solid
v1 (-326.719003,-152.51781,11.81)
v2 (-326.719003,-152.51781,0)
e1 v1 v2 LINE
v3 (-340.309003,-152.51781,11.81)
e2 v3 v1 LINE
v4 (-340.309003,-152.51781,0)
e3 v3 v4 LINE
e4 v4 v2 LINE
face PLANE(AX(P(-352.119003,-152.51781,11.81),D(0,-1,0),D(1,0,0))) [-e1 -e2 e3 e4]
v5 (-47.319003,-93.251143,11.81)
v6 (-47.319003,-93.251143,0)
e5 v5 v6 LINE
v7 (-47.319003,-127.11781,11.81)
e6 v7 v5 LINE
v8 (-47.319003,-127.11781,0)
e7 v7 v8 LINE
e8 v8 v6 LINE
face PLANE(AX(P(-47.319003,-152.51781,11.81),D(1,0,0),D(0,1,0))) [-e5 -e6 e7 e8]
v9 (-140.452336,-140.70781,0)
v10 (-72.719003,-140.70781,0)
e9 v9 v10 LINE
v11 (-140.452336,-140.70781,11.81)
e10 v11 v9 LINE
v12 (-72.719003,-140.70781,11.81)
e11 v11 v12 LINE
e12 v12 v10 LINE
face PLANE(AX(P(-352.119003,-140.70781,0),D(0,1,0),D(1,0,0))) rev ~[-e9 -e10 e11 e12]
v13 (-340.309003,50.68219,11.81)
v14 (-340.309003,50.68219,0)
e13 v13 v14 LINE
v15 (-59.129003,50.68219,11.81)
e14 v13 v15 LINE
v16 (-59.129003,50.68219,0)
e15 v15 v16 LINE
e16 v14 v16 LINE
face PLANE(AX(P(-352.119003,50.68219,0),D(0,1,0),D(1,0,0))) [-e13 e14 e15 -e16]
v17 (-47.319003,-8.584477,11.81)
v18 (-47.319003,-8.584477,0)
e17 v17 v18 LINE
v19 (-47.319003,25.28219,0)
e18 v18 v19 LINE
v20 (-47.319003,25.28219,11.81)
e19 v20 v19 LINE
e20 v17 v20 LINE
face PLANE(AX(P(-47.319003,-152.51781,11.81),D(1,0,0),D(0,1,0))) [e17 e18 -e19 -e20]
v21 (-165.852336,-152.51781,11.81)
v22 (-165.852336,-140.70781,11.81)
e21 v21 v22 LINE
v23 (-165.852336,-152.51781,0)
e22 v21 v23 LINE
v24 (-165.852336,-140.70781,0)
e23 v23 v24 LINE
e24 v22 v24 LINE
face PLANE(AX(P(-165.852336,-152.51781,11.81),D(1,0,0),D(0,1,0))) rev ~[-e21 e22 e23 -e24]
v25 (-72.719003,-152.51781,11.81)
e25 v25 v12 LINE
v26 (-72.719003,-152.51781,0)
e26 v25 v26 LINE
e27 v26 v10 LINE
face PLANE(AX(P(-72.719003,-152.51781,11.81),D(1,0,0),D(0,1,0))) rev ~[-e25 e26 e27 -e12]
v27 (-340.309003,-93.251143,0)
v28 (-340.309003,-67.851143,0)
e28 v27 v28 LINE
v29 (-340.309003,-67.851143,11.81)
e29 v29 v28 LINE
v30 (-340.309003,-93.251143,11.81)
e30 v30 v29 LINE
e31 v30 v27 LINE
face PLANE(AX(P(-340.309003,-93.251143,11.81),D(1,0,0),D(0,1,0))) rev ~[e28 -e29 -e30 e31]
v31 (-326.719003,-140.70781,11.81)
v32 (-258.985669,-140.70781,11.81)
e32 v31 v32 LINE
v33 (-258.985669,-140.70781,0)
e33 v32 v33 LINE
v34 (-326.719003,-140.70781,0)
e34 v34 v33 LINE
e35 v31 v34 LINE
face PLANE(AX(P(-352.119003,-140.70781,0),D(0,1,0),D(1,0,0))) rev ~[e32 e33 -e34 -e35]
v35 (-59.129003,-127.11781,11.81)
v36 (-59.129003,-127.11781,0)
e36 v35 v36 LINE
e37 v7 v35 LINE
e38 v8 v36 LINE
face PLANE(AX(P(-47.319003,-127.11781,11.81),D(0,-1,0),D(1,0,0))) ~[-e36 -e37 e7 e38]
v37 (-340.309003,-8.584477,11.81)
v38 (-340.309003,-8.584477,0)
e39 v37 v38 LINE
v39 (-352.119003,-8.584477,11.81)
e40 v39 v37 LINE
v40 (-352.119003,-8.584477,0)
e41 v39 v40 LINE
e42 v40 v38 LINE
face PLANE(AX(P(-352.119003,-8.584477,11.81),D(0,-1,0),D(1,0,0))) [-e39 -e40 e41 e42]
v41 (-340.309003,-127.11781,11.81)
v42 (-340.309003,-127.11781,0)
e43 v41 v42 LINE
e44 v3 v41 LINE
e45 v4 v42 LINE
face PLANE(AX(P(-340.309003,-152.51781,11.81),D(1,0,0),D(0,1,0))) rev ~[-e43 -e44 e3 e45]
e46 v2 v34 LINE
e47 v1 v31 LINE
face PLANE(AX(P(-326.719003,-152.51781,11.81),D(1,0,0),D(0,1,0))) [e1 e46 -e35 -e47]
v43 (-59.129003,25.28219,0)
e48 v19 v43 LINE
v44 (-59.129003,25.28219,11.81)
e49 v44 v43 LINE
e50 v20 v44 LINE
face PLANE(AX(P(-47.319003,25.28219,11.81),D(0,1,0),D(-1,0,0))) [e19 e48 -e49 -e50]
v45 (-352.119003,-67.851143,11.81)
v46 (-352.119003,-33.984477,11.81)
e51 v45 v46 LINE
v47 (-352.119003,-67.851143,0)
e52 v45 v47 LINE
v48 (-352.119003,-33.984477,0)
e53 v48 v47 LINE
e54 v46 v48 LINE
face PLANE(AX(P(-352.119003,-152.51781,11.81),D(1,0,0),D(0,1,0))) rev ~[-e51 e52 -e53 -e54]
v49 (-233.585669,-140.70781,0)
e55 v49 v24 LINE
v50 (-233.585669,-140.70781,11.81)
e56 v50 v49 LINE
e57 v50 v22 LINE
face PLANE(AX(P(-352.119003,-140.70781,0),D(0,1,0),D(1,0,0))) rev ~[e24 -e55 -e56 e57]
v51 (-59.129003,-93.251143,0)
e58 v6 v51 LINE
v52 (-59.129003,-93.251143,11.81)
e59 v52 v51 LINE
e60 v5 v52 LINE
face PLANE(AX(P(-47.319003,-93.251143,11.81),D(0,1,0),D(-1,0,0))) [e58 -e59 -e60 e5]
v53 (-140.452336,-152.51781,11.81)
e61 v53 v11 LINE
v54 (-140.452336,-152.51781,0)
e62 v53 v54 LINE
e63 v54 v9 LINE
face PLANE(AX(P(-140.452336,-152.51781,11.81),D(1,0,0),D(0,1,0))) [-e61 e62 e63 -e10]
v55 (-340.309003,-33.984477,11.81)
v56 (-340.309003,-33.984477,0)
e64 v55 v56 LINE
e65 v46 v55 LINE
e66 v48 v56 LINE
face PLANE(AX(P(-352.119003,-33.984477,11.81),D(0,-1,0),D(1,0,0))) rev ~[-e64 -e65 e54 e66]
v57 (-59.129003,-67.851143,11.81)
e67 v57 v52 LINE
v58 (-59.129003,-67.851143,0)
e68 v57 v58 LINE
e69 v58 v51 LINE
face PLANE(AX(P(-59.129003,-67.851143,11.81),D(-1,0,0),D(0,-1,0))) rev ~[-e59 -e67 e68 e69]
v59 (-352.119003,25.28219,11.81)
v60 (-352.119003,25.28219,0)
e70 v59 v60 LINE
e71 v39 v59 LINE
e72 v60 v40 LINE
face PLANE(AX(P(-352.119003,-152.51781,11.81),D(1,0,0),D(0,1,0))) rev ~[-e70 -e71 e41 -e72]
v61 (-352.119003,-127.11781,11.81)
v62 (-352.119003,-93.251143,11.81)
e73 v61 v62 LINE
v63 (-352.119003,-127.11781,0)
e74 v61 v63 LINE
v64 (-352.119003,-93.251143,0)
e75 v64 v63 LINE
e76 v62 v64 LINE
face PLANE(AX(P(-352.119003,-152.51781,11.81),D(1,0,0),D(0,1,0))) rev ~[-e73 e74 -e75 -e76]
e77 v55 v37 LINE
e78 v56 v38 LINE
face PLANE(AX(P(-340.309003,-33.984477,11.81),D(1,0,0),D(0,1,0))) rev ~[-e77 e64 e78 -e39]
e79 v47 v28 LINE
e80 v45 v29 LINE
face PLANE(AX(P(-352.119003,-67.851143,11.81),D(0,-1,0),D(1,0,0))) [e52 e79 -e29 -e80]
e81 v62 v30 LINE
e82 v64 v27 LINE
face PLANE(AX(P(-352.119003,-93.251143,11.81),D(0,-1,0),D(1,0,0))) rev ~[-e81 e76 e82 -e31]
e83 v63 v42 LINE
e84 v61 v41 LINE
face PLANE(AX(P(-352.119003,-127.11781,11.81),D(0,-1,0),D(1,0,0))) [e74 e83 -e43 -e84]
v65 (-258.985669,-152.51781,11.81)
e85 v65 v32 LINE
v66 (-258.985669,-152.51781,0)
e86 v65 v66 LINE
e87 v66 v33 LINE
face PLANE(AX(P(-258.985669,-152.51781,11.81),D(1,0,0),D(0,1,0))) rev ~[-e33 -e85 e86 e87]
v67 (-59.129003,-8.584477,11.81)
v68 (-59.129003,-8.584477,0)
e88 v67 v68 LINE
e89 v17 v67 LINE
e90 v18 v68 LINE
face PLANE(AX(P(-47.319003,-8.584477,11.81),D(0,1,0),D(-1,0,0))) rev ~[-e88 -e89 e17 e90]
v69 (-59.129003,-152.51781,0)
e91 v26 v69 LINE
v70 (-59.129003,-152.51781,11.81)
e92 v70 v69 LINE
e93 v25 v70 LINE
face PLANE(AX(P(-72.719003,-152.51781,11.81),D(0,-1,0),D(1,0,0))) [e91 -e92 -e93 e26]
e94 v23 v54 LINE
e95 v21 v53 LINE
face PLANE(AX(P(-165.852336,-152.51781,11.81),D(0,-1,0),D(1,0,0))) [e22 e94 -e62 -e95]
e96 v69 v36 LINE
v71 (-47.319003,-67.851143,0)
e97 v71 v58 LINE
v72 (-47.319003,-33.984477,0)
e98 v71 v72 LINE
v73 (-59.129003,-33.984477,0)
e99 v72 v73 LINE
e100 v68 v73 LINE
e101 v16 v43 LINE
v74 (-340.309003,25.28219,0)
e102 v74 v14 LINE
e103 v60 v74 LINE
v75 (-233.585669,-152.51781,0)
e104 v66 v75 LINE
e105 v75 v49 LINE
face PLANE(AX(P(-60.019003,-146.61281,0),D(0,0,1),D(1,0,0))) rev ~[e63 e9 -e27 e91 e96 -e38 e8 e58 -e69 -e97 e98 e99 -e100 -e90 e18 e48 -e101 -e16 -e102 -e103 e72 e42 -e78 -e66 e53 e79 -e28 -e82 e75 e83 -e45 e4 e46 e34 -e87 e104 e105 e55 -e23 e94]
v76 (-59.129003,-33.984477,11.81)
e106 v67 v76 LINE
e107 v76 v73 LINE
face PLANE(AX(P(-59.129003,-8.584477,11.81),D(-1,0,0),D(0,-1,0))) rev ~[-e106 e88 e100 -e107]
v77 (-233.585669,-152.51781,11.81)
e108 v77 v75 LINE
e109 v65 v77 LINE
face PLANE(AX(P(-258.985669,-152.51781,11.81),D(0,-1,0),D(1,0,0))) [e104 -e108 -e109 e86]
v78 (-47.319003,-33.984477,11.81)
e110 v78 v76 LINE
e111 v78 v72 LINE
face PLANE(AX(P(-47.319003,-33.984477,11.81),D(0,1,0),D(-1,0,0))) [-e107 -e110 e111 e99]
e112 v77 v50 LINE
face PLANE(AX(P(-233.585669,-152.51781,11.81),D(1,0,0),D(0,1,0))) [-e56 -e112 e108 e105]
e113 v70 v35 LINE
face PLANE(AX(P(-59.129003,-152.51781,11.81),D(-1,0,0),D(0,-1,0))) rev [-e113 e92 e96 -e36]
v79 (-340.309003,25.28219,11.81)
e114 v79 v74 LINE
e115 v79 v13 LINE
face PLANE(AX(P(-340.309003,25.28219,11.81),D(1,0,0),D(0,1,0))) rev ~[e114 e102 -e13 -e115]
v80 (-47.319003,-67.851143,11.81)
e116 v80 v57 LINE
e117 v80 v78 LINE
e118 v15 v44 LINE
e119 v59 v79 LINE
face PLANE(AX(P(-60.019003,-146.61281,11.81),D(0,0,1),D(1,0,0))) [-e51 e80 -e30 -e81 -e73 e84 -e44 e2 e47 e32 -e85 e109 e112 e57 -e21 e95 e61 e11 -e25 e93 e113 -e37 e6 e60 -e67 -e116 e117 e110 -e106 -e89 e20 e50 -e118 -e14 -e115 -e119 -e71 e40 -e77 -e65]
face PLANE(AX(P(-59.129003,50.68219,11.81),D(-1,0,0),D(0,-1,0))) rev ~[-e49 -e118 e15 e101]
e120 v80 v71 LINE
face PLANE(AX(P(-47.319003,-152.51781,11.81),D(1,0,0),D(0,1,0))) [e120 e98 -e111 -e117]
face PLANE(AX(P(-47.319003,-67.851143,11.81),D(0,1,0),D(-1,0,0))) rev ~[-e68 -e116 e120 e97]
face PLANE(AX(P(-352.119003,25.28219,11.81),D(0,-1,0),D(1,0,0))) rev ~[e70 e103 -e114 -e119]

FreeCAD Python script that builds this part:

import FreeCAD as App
import Part
import Sketcher

V = App.Vector
Q = App.Units.Quantity

doc = App.newDocument("Part")
body = doc.addObject("PartDesign::Body", "Body")

# Sketch on XY plane
sketch1 = body.newObject("Sketcher::SketchObject", "Sketch")
sketch1.AttachmentSupport = (doc.getObject("XY_Plane"), [""])
sketch1.MapMode = "FlatFace"
sketch1.addGeometry([
    Part.LineSegment(V(-352.119003, 50.68219, 0), V(-352.119003, -140.70781, 0)),
    Part.LineSegment(V(-352.119003, -140.70781, 0), V(-47.319003, -140.70781, 0)),
    Part.LineSegment(V(-47.319003, -140.70781, 0), V(-47.319003, 50.68219, 0)),
    Part.LineSegment(V(-47.319003, 50.68219, 0), V(-352.119003, 50.68219, 0)),
], False)
sketch1.addConstraint([
    Sketcher.Constraint("Coincident", 0, 2, 1, 1),
    Sketcher.Constraint("Coincident", 1, 2, 2, 1),
    Sketcher.Constraint("Coincident", 2, 2, 3, 1),
    Sketcher.Constraint("Coincident", 3, 2, 0, 1),
    Sketcher.Constraint("Vertical", 0),
    Sketcher.Constraint("Horizontal", 1),
    Sketcher.Constraint("Vertical", 2),
    Sketcher.Constraint("Horizontal", 3),
    Sketcher.Constraint("DistanceX", 1, 1, 1, 2, Q("12 in")),
    Sketcher.Constraint("DistanceY", 0, 2, 0, 1, 191.39),
    Sketcher.Constraint("DistanceY", 0, 2, -1, 1, 140.70781),
    Sketcher.Constraint("DistanceX", 0, 2, -1, 1, 352.119003),
])
pad1 = body.newObject("PartDesign::Pad", "Pad")
pad1.Profile = sketch1
pad1.Length = 11.81

# Sketch on XY plane
sketch2 = body.newObject("Sketcher::SketchObject", "Sketch001")
sketch2.AttachmentSupport = (doc.getObject("XY_Plane"), [""])
sketch2.MapMode = "FlatFace"
sketch2.AttachmentOffset = App.Placement(V(0, 0, 11.81), App.Rotation())
sketch2.addGeometry([
    Part.LineSegment(V(-352.119003, -140.70781, 0), V(-352.119003, -152.51781, 0)),
    Part.LineSegment(V(-352.119003, -152.51781, 0), V(-326.719003, -152.51781, 0)),
    Part.LineSegment(V(-326.719003, -152.51781, 0), V(-326.719003, -140.70781, 0)),
    Part.LineSegment(V(-326.719003, -140.70781, 0), V(-352.119003, -140.70781, 0)),
], False)
sketch2.addConstraint([
    Sketcher.Constraint("Coincident", 0, 2, 1, 1),
    Sketcher.Constraint("Coincident", 1, 2, 2, 1),
    Sketcher.Constraint("Coincident", 2, 2, 3, 1),
    Sketcher.Constraint("Coincident", 3, 2, 0, 1),
    Sketcher.Constraint("Vertical", 0),
    Sketcher.Constraint("Horizontal", 1),
    Sketcher.Constraint("Vertical", 2),
    Sketcher.Constraint("Horizontal", 3),
    Sketcher.Constraint("DistanceX", 1, 1, 1, 2, Q("1 in")),
    Sketcher.Constraint("DistanceY", 0, 2, 0, 1, 11.81),
    Sketcher.Constraint("DistanceY", 0, 2, -1, 1, 152.51781),
    Sketcher.Constraint("DistanceX", 0, 2, -1, 1, 352.119003),
])
pad2 = body.newObject("PartDesign::Pad", "Pad001")
pad2.Profile = sketch2
pad2.Length = 11.81
pad2.Reversed = True

# Sketch on XY plane
sketch3 = body.newObject("Sketcher::SketchObject", "Sketch002")
sketch3.AttachmentSupport = (doc.getObject("XY_Plane"), [""])
sketch3.MapMode = "FlatFace"
sketch3.AttachmentOffset = App.Placement(V(0, 0, 11.81), App.Rotation())
sketch3.addGeometry([
    Part.LineSegment(V(-352.119003, -127.11781, 0), V(-352.119003, -152.51781, 0)),
    Part.LineSegment(V(-352.119003, -152.51781, 0), V(-340.309003, -152.51781, 0)),
    Part.LineSegment(V(-340.309003, -152.51781, 0), V(-340.309003, -127.11781, 0)),
    Part.LineSegment(V(-340.309003, -127.11781, 0), V(-352.119003, -127.11781, 0)),
], False)
sketch3.addConstraint([
    Sketcher.Constraint("Coincident", 0, 2, 1, 1),
    Sketcher.Constraint("Coincident", 1, 2, 2, 1),
    Sketcher.Constraint("Coincident", 2, 2, 3, 1),
    Sketcher.Constraint("Coincident", 3, 2, 0, 1),
    Sketcher.Constraint("Vertical", 0),
    Sketcher.Constraint("Horizontal", 1),
    Sketcher.Constraint("Vertical", 2),
    Sketcher.Constraint("Horizontal", 3),
    Sketcher.Constraint("DistanceY", 0, 2, 0, 1, Q("1 in")),
    Sketcher.Constraint("DistanceX", 1, 1, 1, 2, 11.81),
    Sketcher.Constraint("DistanceY", 0, 2, -1, 1, 152.51781),
    Sketcher.Constraint("DistanceX", 0, 2, -1, 1, 352.119003),
])
pocket1 = body.newObject("PartDesign::Pocket", "Pocket")
pocket1.Profile = sketch3
pocket1.Type = "ThroughAll"
doc.recompute()

linearpattern = body.newObject("PartDesign::LinearPattern", "LinearPattern")
linearpattern.Originals = [pad2]
linearpattern.Direction = (doc.getObject("X_Axis"), [""])
linearpattern.Mode = "offset"
linearpattern.Offset = 93.133333
linearpattern.Occurrences = 4
body.Tip = linearpattern
doc.recompute()

linearpattern2 = body.newObject("PartDesign::LinearPattern", "LinearPattern001")
linearpattern2.Originals = [pocket1]
linearpattern2.Direction = (doc.getObject("Y_Axis"), [""])
linearpattern2.Mode = "offset"
linearpattern2.Offset = 59.266667
linearpattern2.Occurrences = 4
body.Tip = linearpattern2
doc.recompute()

datumplane = body.newObject("PartDesign::Plane", "DatumPlane")
datumplane.AttachmentSupport = (doc.getObject("YZ_Plane"), [""])
datumplane.MapMode = "FlatFace"
datumplane.AttachmentOffset = App.Placement(V(0, 0, -199.719003), App.Rotation())
mirrored = body.newObject("PartDesign::Mirrored", "Mirrored")
mirrored.Originals = [pocket1]
mirrored.MirrorPlane = (datumplane, [""])
body.Tip = mirrored

# Sketch on XY plane
sketch4 = body.newObject("Sketcher::SketchObject", "Sketch003")
sketch4.AttachmentSupport = (doc.getObject("XY_Plane"), [""])
sketch4.MapMode = "FlatFace"
sketch4.AttachmentOffset = App.Placement(V(0, 0, 11.81), App.Rotation())
sketch4.addGeometry([
    Part.LineSegment(V(-47.319003, -93.251143, 0), V(-47.319003, -67.851143, 0)),
    Part.LineSegment(V(-47.319003, -67.851143, 0), V(-59.129003, -67.851143, 0)),
    Part.LineSegment(V(-59.129003, -67.851143, 0), V(-59.129003, -93.251143, 0)),
    Part.LineSegment(V(-59.129003, -93.251143, 0), V(-47.319003, -93.251143, 0)),
], False)
sketch4.addConstraint([
    Sketcher.Constraint("Coincident", 0, 2, 1, 1),
    Sketcher.Constraint("Coincident", 1, 2, 2, 1),
    Sketcher.Constraint("Coincident", 2, 2, 3, 1),
    Sketcher.Constraint("Coincident", 3, 2, 0, 1),
    Sketcher.Constraint("Vertical", 0),
    Sketcher.Constraint("Horizontal", 1),
    Sketcher.Constraint("Vertical", 2),
    Sketcher.Constraint("Horizontal", 3),
    Sketcher.Constraint("DistanceY", 0, 1, 0, 2, Q("1 in")),
    Sketcher.Constraint("DistanceX", 1, 2, 1, 1, 11.81),
    Sketcher.Constraint("DistanceX", 0, 2, -1, 1, 47.319003),
    Sketcher.Constraint("DistanceY", 0, 2, -1, 1, 67.851143),
])
pocket2 = body.newObject("PartDesign::Pocket", "Pocket001")
pocket2.Profile = sketch4
pocket2.Type = "ThroughAll"

# Sketch on XY plane
sketch5 = body.newObject("Sketcher::SketchObject", "Sketch004")
sketch5.AttachmentSupport = (doc.getObject("XY_Plane"), [""])
sketch5.MapMode = "FlatFace"
sketch5.AttachmentOffset = App.Placement(V(0, 0, 11.81), App.Rotation())
sketch5.addGeometry([
    Part.LineSegment(V(-47.319003, -33.984477, 0), V(-47.319003, -8.584477, 0)),
    Part.LineSegment(V(-47.319003, -8.584477, 0), V(-59.129003, -8.584477, 0)),
    Part.LineSegment(V(-59.129003, -8.584477, 0), V(-59.129003, -33.984477, 0)),
    Part.LineSegment(V(-59.129003, -33.984477, 0), V(-47.319003, -33.984477, 0)),
], False)
sketch5.addConstraint([
    Sketcher.Constraint("Coincident", 0, 2, 1, 1),
    Sketcher.Constraint("Coincident", 1, 2, 2, 1),
    Sketcher.Constraint("Coincident", 2, 2, 3, 1),
    Sketcher.Constraint("Coincident", 3, 2, 0, 1),
    Sketcher.Constraint("Vertical", 0),
    Sketcher.Constraint("Horizontal", 1),
    Sketcher.Constraint("Vertical", 2),
    Sketcher.Constraint("Horizontal", 3),
    Sketcher.Constraint("DistanceY", 0, 1, 0, 2, Q("1 in")),
    Sketcher.Constraint("DistanceX", 1, 2, 1, 1, 11.81),
    Sketcher.Constraint("DistanceX", 0, 2, -1, 1, 47.319003),
    Sketcher.Constraint("DistanceY", 0, 2, -1, 1, 8.584477),
])
pocket3 = body.newObject("PartDesign::Pocket", "Pocket002")
pocket3.Profile = sketch5
pocket3.Type = "ThroughAll"

# Sketch on XY plane
sketch6 = body.newObject("Sketcher::SketchObject", "Sketch005")
sketch6.AttachmentSupport = (doc.getObject("XY_Plane"), [""])
sketch6.MapMode = "FlatFace"
sketch6.AttachmentOffset = App.Placement(V(0, 0, 11.81), App.Rotation())
sketch6.addGeometry([
    Part.LineSegment(V(-47.319003, 25.28219, 0), V(-47.319003, 50.68219, 0)),
    Part.LineSegment(V(-47.319003, 50.68219, 0), V(-59.129003, 50.68219, 0)),
    Part.LineSegment(V(-59.129003, 50.68219, 0), V(-59.129003, 25.28219, 0)),
    Part.LineSegment(V(-59.129003, 25.28219, 0), V(-47.319003, 25.28219, 0)),
], False)
sketch6.addConstraint([
    Sketcher.Constraint("Coincident", 0, 2, 1, 1),
    Sketcher.Constraint("Coincident", 1, 2, 2, 1),
    Sketcher.Constraint("Coincident", 2, 2, 3, 1),
    Sketcher.Constraint("Coincident", 3, 2, 0, 1),
    Sketcher.Constraint("Vertical", 0),
    Sketcher.Constraint("Horizontal", 1),
    Sketcher.Constraint("Vertical", 2),
    Sketcher.Constraint("Horizontal", 3),
    Sketcher.Constraint("DistanceY", 0, 1, 0, 2, Q("1 in")),
    Sketcher.Constraint("DistanceX", 1, 2, 1, 1, 11.81),
    Sketcher.Constraint("DistanceY", -1, 1, 0, 2, 50.68219),
    Sketcher.Constraint("DistanceX", 0, 2, -1, 1, 47.319003),
])
pocket4 = body.newObject("PartDesign::Pocket", "Pocket003")
pocket4.Profile = sketch6
pocket4.Type = "ThroughAll"

doc.recompute()
